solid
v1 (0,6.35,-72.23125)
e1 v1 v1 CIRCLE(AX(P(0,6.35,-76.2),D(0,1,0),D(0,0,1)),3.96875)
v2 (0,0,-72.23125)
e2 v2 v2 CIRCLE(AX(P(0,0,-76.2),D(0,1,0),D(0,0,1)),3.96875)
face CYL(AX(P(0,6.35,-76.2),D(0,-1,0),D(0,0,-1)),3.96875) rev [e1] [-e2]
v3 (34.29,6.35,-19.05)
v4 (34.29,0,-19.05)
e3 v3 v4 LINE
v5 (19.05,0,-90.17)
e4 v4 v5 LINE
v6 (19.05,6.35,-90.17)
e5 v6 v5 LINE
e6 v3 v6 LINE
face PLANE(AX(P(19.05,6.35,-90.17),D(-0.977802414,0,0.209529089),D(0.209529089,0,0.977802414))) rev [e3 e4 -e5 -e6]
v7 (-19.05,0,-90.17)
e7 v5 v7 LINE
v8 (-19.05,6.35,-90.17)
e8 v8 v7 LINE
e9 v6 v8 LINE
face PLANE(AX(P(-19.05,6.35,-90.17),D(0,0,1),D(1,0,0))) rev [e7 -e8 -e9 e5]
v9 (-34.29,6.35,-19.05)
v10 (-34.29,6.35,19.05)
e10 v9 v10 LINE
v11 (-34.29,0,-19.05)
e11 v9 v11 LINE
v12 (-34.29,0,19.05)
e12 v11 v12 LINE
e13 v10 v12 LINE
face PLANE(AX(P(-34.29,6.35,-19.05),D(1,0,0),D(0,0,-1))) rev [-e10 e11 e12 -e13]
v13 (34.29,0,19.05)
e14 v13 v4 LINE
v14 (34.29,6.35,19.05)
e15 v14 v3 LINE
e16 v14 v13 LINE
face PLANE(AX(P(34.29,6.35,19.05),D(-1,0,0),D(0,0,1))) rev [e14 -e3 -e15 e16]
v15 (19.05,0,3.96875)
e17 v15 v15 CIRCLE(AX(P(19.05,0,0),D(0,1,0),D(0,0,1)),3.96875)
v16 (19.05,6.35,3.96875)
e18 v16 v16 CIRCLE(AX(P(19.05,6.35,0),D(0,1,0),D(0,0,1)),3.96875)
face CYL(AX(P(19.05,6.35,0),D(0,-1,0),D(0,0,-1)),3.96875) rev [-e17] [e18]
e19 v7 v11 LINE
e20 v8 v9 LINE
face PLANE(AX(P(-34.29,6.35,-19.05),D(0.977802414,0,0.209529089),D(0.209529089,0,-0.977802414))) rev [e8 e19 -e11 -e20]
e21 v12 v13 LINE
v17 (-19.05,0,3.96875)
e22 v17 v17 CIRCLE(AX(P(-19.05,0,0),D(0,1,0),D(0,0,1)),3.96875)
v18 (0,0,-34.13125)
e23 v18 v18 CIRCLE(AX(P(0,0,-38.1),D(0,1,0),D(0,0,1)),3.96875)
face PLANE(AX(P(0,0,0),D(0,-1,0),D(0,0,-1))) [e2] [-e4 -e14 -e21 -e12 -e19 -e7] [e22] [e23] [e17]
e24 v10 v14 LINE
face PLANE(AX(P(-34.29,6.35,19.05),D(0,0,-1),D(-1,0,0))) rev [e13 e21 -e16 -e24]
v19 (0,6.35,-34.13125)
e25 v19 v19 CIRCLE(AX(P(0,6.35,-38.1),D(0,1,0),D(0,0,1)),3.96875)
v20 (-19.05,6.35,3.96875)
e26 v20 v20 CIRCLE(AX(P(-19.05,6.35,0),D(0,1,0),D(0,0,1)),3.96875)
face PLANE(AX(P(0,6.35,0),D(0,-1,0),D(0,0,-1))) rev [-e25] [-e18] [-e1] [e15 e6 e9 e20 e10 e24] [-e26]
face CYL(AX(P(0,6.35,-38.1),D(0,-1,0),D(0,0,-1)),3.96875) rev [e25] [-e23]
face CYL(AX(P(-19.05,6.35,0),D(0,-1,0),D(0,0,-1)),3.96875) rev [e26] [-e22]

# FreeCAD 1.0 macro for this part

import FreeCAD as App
import Part
import Sketcher
Q = App.Units.Quantity

doc = App.newDocument("Part")
params = doc.addObject("Spreadsheet::Sheet", "Params")
for row, (alias, value) in enumerate([
    ("sketch1_diameter", "0.3125 in"),
    ("sketch1_width", "2.7 in"),
    ("sketch1_width2", "1.5 in"),
    ("pad1_length", "0.25 in"),
], start=1):
    params.set(f"A{row}", alias)
    params.set(f"B{row}", "=" + value)
    params.setAlias(f"B{row}", alias)

body = doc.addObject("PartDesign::Body", "Body")

sketch1 = body.newObject("Sketcher::SketchObject", "Sketch")
sketch1.AttachmentSupport = (doc.getObject("XZ_Plane"), [""])
sketch1.MapMode = "FlatFace"
sketch1.addGeometry(Part.LineSegment(App.Vector(-34.29, -19.05, 0), App.Vector(-34.29, 19.05, 0)), False)
sketch1.addGeometry(Part.LineSegment(App.Vector(-34.29, 19.05, 0), App.Vector(34.29, 19.05, 0)), False)
sketch1.addGeometry(Part.LineSegment(App.Vector(34.29, 19.05, 0), App.Vector(34.29, -19.05, 0)), False)
sketch1.addGeometry(Part.LineSegment(App.Vector(34.29, -19.05, 0), App.Vector(19.05, -90.17, 0)), False)
sketch1.addGeometry(Part.LineSegment(App.Vector(19.05, -90.17, 0), App.Vector(-19.05, -90.17, 0)), False)
sketch1.addGeometry(Part.LineSegment(App.Vector(-19.05, -90.17, 0), App.Vector(-34.29, -19.05, 0)), False)
sketch1.addGeometry(Part.Circle(App.Vector(-19.05, 0, 0), App.Vector(0, 0, 1), 3.96875), False)
sketch1.addGeometry(Part.Circle(App.Vector(19.05, 0, 0), App.Vector(0, 0, 1), 3.96875), False)
sketch1.addGeometry(Part.Circle(App.Vector(0, -38.1, 0), App.Vector(0, 0, 1), 3.96875), False)
sketch1.addGeometry(Part.Circle(App.Vector(0, -76.2, 0), App.Vector(0, 0, 1), 3.96875), False)
sketch1.addConstraint(Sketcher.Constraint("Coincident", 0, 2, 1, 1))
sketch1.addConstraint(Sketcher.Constraint("Coincident", 1, 2, 2, 1))
sketch1.addConstraint(Sketcher.Constraint("Coincident", 2, 2, 3, 1))
sketch1.addConstraint(Sketcher.Constraint("Coincident", 3, 2, 4, 1))
sketch1.addConstraint(Sketcher.Constraint("Coincident", 4, 2, 5, 1))
sketch1.addConstraint(Sketcher.Constraint("Coincident", 5, 2, 0, 1))
sketch1.addConstraint(Sketcher.Constraint("Vertical", 0))
sketch1.addConstraint(Sketcher.Constraint("Horizontal", 1))
sketch1.addConstraint(Sketcher.Constraint("Vertical", 2))
sketch1.addConstraint(Sketcher.Constraint("Horizontal", 4))
sketch1.addConstraint(Sketcher.Constraint("Equal", 6, 7))
sketch1.addConstraint(Sketcher.Constraint("Equal", 7, 8))
sketch1.addConstraint(Sketcher.Constraint("Equal", 8, 9))
sketch1.addConstraint(Sketcher.Constraint("Symmetric", 6, 3, 7, 3, -1, 1))
sketch1.addConstraint(Sketcher.Constraint("Symmetric", 0, 2, 2, 2, -1, 1))
sketch1.addConstraint(Sketcher.Constraint("PointOnObject", 6, 3, -1))
sketch1.addConstraint(Sketcher.Constraint("PointOnObject", 8, 3, -2))
sketch1.addConstraint(Sketcher.Constraint("PointOnObject", 9, 3, -2))
sketch1.addConstraint(Sketcher.Constraint("Horizontal", 2, 2, 5, 2))
sketch1.addConstraint(Sketcher.Constraint("Vertical", 7, 3, 3, 2))
sketch1.addConstraint(Sketcher.Constraint("Vertical", 6, 3, 4, 2))
sketch1.addConstraint(Sketcher.Constraint("Equal", 4, 0))
sketch1.addConstraint(Sketcher.Constraint("Diameter", 6, Q("0.3125 in")))
sketch1.addConstraint(Sketcher.Constraint("DistanceX", 1, 1, 1, 2, Q("2.7 in")))
sketch1.addConstraint(Sketcher.Constraint("DistanceX", 4, 2, 4, 1, Q("1.5 in")))
sketch1.addConstraint(Sketcher.Constraint("DistanceY", 9, 3, -1, 1, Q("3 in")))
sketch1.addConstraint(Sketcher.Constraint("DistanceY", 8, 3, -1, 1, Q("1.5 in")))
sketch1.addConstraint(Sketcher.Constraint("DistanceY", 3, 2, 2, 2, Q("2.8 in")))
sketch1.setExpression("Constraints[22]", "Params.sketch1_diameter")
sketch1.setExpression("Constraints[23]", "Params.sketch1_width")
sketch1.setExpression("Constraints[24]", "Params.sketch1_width2")
pad1 = body.newObject("PartDesign::Pad", "Pad")
pad1.Profile = sketch1
pad1.setExpression("Length", "Params.pad1_length")
pad1.Reversed = True

doc.recompute()
